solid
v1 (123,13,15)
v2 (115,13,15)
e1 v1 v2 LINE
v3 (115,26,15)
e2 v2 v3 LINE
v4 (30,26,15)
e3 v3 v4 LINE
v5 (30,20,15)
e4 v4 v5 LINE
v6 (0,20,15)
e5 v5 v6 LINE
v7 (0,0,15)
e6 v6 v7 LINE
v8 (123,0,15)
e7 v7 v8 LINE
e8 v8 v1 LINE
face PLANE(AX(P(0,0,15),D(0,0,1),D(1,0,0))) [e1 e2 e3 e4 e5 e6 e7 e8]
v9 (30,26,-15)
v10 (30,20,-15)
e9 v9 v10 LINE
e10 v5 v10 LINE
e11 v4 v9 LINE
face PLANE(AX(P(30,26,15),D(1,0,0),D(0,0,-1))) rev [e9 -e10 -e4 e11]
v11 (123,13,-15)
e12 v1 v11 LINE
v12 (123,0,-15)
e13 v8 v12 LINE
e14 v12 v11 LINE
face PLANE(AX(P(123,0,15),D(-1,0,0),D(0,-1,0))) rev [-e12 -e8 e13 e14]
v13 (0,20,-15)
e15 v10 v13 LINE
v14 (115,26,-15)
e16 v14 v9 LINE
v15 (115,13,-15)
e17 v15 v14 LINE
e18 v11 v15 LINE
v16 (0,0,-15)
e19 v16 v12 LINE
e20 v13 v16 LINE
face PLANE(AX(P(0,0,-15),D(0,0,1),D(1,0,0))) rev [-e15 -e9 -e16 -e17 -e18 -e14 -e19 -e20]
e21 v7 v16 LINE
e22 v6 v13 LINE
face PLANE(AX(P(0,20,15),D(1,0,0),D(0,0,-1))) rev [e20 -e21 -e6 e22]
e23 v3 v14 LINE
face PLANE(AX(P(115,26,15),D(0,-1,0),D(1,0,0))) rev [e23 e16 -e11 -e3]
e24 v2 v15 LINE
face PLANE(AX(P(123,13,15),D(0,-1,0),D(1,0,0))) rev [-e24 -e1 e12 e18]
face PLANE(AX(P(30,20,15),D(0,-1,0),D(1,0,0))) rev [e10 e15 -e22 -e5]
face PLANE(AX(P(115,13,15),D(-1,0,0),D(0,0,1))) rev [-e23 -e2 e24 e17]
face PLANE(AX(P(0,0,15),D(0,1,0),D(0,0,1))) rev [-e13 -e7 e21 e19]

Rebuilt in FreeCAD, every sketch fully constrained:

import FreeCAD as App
import Part
import Sketcher
from FreeCAD import Vector

doc = App.newDocument("Part")
body = doc.addObject("PartDesign::Body", "Body")

# Sketch on XY plane
sketch1 = body.newObject("Sketcher::SketchObject", "Sketch")
sketch1.AttachmentSupport = (doc.getObject("XY_Plane"), [""])
sketch1.MapMode = "FlatFace"
sketch1.addGeometry([
    Part.LineSegment(Vector(0, 0, 0), Vector(123, 0, 0)),  # 0
    Part.LineSegment(Vector(123, 0, 0), Vector(123, 13, 0)),  # 1
    Part.LineSegment(Vector(123, 13, 0), Vector(115, 13, 0)),  # 2
    Part.LineSegment(Vector(115, 13, 0), Vector(115, 26, 0)),  # 3
    Part.LineSegment(Vector(115, 26, 0), Vector(30, 26, 0)),  # 4
    Part.LineSegment(Vector(30, 26, 0), Vector(30, 20, 0)),  # 5
    Part.LineSegment(Vector(30, 20, 0), Vector(0, 20, 0)),  # 6
    Part.LineSegment(Vector(0, 20, 0), Vector(0, 0, 0)),  # 7
], False)
sketch1.addConstraint([
    Sketcher.Constraint("Coincident", 0, 2, 1, 1),
    Sketcher.Constraint("Coincident", 1, 2, 2, 1),
    Sketcher.Constraint("Coincident", 2, 2, 3, 1),
    Sketcher.Constraint("Coincident", 3, 2, 4, 1),
    Sketcher.Constraint("Coincident", 4, 2, 5, 1),
    Sketcher.Constraint("Coincident", 5, 2, 6, 1),
    Sketcher.Constraint("Coincident", 6, 2, 7, 1),
    Sketcher.Constraint("Coincident", 7, 2, 0, 1),
    Sketcher.Constraint("Horizontal", 0),
    Sketcher.Constraint("Vertical", 1),
    Sketcher.Constraint("Horizontal", 2),
    Sketcher.Constraint("Vertical", 3),
    Sketcher.Constraint("Horizontal", 4),
    Sketcher.Constraint("Vertical", 5),
    Sketcher.Constraint("Horizontal", 6),
    Sketcher.Constraint("Vertical", 7),
    Sketcher.Constraint("Coincident", 7, 2, -1, 1),
    Sketcher.Constraint("Equal", 1, 3),
    Sketcher.Constraint("DistanceX", 0, 1, 0, 2, 123.0),
    Sketcher.Constraint("DistanceX", 2, 2, 2, 1, 8.0),
    Sketcher.Constraint("DistanceX", 4, 2, 4, 1, 85.0),
    Sketcher.Constraint("DistanceY", 1, 1, 1, 2, 13.0),
    Sketcher.Constraint("DistanceY", 5, 2, 5, 1, 6.0),
])
pad1 = body.newObject("PartDesign::Pad", "Pad")
pad1.Profile = sketch1
pad1.Length = 30
pad1.Midplane = True

doc.recompute()
